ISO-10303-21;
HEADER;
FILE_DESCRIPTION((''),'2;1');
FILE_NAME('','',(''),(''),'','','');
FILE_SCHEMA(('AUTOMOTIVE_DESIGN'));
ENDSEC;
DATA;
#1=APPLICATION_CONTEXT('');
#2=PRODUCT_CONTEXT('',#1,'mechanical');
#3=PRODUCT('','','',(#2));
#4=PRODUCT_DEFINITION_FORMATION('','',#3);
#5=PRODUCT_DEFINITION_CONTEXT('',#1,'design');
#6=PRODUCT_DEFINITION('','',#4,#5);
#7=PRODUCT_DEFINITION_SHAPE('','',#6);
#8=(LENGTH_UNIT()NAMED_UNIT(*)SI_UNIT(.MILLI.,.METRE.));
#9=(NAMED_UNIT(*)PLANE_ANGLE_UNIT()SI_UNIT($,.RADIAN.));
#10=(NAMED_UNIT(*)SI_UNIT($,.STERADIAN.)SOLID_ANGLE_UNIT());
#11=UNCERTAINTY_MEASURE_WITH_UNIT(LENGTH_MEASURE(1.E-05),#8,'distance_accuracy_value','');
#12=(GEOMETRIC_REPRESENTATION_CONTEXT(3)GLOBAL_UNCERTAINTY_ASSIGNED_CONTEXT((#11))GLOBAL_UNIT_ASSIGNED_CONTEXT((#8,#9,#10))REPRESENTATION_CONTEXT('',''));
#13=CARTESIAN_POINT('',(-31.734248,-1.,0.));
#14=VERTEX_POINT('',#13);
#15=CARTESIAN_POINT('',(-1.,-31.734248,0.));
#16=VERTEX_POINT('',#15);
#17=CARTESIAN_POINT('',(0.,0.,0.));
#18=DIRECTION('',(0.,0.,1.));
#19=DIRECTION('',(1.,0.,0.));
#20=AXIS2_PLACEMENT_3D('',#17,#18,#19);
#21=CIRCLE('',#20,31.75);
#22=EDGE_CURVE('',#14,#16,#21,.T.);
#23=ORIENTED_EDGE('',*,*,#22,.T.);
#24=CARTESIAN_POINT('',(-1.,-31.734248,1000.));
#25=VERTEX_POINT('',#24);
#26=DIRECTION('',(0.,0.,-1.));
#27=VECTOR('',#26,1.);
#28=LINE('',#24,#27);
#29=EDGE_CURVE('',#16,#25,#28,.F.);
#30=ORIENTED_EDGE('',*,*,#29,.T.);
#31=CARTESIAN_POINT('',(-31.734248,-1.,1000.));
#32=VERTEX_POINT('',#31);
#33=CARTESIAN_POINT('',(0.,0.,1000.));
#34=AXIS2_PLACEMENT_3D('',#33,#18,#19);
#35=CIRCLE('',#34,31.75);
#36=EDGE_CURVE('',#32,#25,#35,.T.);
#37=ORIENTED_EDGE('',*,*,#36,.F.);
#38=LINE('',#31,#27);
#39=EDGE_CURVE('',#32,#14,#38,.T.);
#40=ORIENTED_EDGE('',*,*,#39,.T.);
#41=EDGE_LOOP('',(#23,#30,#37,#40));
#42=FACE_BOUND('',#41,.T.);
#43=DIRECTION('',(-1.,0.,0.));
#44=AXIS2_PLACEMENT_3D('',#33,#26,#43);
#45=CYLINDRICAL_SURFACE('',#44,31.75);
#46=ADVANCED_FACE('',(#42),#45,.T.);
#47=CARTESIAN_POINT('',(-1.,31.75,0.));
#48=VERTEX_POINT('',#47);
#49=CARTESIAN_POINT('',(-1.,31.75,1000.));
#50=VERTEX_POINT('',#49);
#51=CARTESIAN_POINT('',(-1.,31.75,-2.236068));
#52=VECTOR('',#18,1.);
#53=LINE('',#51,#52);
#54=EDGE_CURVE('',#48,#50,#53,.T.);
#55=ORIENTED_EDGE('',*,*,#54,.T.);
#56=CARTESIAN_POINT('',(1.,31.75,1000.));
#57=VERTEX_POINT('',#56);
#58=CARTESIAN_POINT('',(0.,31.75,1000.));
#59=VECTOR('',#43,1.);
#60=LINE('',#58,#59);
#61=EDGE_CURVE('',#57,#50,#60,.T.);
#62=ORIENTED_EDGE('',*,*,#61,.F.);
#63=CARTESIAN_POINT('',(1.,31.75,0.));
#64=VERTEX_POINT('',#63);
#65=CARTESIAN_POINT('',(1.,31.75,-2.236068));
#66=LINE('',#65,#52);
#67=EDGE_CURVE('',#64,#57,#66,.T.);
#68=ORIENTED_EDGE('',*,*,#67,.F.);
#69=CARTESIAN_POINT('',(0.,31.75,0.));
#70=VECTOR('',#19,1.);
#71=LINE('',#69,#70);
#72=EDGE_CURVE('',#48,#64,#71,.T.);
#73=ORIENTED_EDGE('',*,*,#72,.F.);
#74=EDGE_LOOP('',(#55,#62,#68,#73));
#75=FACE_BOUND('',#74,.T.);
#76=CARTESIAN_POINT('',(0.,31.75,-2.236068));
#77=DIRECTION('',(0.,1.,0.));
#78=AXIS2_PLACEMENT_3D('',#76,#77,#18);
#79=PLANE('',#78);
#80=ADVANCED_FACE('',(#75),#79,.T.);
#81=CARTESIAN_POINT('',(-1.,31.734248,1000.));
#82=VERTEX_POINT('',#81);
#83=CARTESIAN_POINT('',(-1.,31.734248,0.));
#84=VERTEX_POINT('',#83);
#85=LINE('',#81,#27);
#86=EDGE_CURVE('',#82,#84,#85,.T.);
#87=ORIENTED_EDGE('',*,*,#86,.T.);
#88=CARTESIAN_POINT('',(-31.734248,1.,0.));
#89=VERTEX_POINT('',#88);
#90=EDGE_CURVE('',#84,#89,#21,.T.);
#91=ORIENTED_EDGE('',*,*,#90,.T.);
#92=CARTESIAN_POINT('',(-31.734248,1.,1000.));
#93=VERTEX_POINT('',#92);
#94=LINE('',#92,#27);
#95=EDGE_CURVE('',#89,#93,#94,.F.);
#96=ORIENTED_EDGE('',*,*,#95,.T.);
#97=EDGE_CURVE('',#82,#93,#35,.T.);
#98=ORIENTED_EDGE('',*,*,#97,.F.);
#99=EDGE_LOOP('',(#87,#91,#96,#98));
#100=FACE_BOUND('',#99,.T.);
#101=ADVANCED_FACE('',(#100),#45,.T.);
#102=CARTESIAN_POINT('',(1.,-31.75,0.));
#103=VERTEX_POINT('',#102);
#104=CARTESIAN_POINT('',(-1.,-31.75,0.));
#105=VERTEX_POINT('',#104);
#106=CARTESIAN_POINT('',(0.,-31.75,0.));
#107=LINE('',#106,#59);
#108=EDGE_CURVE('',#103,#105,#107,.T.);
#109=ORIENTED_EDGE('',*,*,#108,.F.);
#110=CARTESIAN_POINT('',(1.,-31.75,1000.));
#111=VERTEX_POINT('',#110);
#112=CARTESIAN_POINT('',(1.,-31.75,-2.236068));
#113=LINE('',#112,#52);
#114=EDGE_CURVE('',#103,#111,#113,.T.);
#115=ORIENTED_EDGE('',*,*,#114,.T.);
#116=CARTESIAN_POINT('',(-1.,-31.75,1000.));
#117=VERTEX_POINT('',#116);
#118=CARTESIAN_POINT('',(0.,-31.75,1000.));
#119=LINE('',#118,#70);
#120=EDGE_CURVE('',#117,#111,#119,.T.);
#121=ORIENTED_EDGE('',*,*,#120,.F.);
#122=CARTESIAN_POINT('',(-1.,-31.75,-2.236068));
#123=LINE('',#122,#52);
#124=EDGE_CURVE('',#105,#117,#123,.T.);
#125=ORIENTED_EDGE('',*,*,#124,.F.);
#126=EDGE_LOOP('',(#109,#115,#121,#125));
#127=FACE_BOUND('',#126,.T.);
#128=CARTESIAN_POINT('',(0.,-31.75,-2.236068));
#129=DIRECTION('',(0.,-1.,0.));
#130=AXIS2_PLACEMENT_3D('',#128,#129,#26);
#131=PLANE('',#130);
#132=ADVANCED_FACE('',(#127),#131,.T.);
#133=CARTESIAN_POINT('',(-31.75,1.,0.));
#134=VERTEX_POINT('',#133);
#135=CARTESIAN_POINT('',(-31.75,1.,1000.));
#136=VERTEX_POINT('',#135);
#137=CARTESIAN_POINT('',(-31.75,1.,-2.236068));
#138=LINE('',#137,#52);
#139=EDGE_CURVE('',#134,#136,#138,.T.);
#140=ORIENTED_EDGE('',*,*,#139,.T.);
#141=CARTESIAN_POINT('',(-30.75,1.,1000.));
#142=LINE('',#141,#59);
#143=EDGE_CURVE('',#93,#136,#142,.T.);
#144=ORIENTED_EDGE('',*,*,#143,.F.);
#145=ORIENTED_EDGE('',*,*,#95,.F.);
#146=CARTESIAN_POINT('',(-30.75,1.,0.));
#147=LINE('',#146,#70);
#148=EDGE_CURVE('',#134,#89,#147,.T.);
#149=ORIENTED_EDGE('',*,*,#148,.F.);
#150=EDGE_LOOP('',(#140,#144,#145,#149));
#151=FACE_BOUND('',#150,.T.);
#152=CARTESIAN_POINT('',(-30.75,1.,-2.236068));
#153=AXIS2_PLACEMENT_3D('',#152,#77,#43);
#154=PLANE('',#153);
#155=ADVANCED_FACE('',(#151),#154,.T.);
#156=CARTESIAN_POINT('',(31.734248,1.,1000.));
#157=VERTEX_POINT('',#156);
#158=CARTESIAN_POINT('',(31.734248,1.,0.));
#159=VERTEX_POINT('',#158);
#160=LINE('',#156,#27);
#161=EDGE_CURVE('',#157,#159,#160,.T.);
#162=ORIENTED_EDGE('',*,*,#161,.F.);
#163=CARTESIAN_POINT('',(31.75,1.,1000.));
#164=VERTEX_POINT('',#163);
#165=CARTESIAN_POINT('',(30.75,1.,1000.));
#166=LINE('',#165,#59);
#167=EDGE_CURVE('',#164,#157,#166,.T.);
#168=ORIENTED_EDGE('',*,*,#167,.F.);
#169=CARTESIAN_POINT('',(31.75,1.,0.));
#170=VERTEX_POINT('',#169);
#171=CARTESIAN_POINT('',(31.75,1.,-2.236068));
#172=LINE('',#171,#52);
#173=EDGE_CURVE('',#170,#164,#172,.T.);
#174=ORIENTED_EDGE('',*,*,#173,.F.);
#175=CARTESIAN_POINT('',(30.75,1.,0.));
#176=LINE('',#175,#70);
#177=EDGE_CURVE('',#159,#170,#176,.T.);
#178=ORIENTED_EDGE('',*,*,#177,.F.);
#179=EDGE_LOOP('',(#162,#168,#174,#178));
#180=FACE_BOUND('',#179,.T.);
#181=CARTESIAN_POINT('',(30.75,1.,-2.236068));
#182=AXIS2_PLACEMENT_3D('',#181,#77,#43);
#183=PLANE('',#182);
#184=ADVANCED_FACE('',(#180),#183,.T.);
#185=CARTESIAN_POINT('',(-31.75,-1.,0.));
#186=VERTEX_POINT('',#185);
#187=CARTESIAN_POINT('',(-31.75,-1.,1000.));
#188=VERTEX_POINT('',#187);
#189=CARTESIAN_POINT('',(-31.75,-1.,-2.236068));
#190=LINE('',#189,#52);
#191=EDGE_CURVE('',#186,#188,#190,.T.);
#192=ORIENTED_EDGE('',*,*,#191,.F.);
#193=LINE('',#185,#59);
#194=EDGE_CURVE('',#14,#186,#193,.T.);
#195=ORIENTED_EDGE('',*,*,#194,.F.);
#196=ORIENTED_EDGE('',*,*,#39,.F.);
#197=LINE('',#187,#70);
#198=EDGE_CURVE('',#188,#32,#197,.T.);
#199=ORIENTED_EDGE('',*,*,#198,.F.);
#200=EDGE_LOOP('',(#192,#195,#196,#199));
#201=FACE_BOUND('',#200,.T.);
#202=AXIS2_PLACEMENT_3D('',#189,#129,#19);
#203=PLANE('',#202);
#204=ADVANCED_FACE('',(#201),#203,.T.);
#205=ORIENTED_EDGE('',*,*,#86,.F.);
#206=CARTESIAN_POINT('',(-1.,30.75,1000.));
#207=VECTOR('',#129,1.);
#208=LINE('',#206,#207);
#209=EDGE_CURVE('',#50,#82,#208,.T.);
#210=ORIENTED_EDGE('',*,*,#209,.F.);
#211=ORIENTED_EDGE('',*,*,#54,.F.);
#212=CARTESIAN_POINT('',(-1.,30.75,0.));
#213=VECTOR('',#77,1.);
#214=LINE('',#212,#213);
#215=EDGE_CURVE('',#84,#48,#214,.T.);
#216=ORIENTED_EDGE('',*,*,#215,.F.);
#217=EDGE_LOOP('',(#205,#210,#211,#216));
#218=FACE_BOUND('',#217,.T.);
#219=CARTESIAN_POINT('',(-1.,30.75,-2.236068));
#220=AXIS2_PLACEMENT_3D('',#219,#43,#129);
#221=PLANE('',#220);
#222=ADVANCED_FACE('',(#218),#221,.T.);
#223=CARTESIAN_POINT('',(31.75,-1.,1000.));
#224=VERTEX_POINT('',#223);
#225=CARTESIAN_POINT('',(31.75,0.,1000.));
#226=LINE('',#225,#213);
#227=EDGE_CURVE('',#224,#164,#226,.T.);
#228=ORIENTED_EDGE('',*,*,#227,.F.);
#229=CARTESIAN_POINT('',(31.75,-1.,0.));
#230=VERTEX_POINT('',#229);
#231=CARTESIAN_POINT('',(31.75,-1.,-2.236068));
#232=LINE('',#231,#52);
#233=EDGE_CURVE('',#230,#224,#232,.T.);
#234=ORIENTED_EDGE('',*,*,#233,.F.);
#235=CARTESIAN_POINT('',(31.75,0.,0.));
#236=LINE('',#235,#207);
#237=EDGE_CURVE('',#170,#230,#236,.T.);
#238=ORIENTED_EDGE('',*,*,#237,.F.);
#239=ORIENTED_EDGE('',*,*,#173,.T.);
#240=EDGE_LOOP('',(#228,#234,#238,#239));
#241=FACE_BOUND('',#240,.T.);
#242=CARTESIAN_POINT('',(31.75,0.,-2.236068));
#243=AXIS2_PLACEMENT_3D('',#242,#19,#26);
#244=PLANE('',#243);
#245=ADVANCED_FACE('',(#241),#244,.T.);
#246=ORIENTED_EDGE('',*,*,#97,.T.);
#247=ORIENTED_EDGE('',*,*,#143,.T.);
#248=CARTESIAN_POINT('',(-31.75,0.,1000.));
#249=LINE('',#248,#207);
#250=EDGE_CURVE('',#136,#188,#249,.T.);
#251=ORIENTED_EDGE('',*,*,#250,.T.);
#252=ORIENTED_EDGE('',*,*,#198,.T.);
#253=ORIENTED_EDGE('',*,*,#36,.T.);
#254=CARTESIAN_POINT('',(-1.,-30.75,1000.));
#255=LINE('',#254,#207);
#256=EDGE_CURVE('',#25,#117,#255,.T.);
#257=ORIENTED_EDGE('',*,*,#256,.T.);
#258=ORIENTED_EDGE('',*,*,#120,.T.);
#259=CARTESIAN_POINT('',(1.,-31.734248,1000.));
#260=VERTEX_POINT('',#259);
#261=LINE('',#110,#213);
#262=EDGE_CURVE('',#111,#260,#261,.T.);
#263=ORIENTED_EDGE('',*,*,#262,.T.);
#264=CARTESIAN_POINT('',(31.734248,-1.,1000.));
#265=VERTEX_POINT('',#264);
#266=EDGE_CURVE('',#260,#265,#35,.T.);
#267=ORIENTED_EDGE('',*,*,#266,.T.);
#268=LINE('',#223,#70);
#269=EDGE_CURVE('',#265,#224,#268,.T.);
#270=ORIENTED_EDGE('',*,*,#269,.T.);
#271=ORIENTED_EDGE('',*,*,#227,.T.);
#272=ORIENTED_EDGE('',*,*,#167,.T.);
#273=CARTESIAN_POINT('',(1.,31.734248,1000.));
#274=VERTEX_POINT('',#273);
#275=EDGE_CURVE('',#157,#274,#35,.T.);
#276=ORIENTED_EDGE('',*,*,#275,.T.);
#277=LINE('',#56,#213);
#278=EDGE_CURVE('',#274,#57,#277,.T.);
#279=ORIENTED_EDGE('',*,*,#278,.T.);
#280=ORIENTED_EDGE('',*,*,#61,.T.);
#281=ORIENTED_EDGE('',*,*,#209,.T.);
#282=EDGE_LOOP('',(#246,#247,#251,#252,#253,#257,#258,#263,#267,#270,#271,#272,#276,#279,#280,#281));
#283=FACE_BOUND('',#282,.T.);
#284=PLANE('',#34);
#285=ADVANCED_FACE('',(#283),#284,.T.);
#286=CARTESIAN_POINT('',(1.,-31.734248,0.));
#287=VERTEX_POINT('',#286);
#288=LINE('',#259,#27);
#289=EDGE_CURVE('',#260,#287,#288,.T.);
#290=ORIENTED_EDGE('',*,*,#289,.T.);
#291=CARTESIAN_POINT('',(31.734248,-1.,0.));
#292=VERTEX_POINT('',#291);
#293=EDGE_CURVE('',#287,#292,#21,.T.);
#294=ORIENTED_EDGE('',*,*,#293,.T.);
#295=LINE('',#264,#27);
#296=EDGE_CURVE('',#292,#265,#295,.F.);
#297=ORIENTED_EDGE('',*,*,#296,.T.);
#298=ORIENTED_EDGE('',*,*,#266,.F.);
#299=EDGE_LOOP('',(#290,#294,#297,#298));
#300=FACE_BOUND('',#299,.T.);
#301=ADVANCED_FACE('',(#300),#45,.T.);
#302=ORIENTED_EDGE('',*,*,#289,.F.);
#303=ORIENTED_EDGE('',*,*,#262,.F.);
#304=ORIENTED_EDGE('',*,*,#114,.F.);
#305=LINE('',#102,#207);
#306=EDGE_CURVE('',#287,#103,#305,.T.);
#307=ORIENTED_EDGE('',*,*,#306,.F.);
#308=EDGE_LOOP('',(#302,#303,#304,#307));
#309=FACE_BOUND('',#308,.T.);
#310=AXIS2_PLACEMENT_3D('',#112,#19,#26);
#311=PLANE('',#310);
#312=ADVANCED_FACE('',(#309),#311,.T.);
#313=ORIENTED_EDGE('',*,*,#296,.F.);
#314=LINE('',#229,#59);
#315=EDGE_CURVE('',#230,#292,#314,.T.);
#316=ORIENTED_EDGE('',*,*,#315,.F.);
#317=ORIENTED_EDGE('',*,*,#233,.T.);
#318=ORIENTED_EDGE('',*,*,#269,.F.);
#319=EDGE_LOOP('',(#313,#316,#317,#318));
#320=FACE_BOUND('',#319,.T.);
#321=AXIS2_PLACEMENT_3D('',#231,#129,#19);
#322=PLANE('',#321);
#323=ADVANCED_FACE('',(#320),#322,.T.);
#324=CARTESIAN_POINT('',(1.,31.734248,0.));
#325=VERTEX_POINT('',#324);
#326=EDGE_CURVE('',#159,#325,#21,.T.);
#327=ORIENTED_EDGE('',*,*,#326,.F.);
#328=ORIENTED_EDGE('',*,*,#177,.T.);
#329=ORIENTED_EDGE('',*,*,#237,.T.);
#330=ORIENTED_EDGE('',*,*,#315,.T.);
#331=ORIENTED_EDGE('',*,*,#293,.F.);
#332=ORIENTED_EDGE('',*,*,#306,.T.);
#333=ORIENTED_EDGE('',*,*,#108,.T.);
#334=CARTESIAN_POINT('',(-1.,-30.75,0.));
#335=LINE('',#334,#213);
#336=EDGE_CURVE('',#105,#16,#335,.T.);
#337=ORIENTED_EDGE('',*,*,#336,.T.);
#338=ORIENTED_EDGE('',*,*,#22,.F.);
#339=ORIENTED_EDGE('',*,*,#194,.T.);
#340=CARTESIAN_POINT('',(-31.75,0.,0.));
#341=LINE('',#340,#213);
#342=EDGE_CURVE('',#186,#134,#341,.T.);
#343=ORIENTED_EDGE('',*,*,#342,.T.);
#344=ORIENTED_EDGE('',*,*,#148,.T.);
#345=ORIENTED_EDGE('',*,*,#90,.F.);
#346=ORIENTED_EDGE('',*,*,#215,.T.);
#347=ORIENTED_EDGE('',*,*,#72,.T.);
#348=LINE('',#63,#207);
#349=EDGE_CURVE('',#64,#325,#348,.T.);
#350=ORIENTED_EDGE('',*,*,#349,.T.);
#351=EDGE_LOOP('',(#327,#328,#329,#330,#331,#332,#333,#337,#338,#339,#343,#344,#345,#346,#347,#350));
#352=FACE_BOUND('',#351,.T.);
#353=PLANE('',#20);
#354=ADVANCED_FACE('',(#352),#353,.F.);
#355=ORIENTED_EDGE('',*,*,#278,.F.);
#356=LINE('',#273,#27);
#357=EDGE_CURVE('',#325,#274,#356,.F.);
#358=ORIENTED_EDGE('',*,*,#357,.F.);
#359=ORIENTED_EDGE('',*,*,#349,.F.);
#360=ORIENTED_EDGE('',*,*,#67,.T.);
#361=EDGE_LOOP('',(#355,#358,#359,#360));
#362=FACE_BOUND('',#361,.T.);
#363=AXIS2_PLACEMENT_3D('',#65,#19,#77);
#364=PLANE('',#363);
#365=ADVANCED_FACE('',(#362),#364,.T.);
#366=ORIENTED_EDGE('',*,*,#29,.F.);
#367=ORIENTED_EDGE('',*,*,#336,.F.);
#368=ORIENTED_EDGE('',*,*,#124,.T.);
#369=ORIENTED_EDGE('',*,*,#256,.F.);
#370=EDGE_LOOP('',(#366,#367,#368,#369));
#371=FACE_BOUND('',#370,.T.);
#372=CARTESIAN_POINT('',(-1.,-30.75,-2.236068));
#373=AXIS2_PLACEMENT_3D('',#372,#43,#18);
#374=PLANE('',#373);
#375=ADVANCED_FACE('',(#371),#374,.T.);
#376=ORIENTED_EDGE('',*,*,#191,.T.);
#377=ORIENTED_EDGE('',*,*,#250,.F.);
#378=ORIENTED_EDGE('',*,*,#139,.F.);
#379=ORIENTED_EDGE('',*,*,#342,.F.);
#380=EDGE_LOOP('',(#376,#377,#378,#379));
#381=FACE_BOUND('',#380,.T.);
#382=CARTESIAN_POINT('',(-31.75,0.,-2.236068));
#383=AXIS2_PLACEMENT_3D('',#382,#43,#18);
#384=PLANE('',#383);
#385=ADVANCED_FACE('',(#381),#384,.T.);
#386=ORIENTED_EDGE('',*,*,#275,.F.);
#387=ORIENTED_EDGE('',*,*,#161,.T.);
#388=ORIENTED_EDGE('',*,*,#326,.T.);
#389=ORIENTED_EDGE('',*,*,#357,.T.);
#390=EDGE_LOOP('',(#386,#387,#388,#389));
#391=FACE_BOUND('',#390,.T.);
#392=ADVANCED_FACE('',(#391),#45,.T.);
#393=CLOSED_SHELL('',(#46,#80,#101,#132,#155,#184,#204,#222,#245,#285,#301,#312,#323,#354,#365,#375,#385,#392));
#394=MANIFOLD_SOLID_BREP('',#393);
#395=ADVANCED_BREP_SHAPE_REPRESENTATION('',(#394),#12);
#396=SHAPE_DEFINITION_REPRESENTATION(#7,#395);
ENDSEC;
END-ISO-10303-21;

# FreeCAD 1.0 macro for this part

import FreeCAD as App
import Part
import Sketcher


def add_polygon(sketch, points):
    """Adds a closed chain of lines whose ends are joined by coincident constraints."""
    first, n = sketch.GeometryCount, len(points)
    for a, b in zip(points, points[1:] + points[:1]):
        sketch.addGeometry(Part.LineSegment(App.Vector(*a, 0), App.Vector(*b, 0)), False)
    for i in range(n):
        sketch.addConstraint(Sketcher.Constraint("Coincident", first + i, 2, first + (i + 1) % n, 1))

doc = App.newDocument("Part")
body = doc.addObject("PartDesign::Body", "Body")

# Sketch on XY plane
sketch1 = doc.addObject("Sketcher::SketchObject", "Sketch")
body.addObject(sketch1)
sketch1.AttachmentSupport = (doc.XY_Plane, [""])
sketch1.MapMode = "FlatFace"
sketch1.addGeometry(Part.Circle(App.Vector(0, 0, 0), App.Vector(0, 0, 1), 32), False)
sketch1.addConstraint([
    Sketcher.Constraint("Coincident", 0, 3, -1, 1),
    Sketcher.Constraint("Diameter", 0, 63.5),
])
pad1 = doc.addObject("PartDesign::Pad", "Pad")
body.addObject(pad1)
pad1.Profile = sketch1
pad1.Length = 1000

# Sketch on XY plane
sketch2 = doc.addObject("Sketcher::SketchObject", "Sketch001")
body.addObject(sketch2)
sketch2.AttachmentSupport = (doc.XY_Plane, [""])
sketch2.MapMode = "FlatFace"
sketch2.AttachmentOffset = App.Placement(App.Vector(0, 0, 1000), App.Rotation())
add_polygon(sketch2, [(31.8, -1), (31.8, 1), (30.8, 1), (30.8, -1)])  # lines 0-3
add_polygon(sketch2, [(-31.8, 1), (-31.8, -1), (-30.8, -1), (-30.8, 1)])  # lines 4-7
add_polygon(sketch2, [(1, 31.8), (-1, 31.8), (-1, 30.8), (1, 30.8)])  # lines 8-11
add_polygon(sketch2, [(-1, -31.8), (1, -31.8), (1, -30.8), (-1, -30.8)])  # lines 12-15
sketch2.addConstraint([
    Sketcher.Constraint("Vertical", 0),
    Sketcher.Constraint("Horizontal", 1),
    Sketcher.Constraint("Vertical", 2),
    Sketcher.Constraint("Horizontal", 3),
    Sketcher.Constraint("Vertical", 4),
    Sketcher.Constraint("Horizontal", 5),
    Sketcher.Constraint("Vertical", 6),
    Sketcher.Constraint("Horizontal", 7),
    Sketcher.Constraint("Horizontal", 8),
    Sketcher.Constraint("Vertical", 9),
    Sketcher.Constraint("Horizontal", 10),
    Sketcher.Constraint("Vertical", 11),
    Sketcher.Constraint("Horizontal", 12),
    Sketcher.Constraint("Vertical", 13),
    Sketcher.Constraint("Horizontal", 14),
    Sketcher.Constraint("Vertical", 15),
    Sketcher.Constraint("Symmetric", 0, 2, 4, 2, -1, 1),
    Sketcher.Constraint("Symmetric", 2, 2, 6, 2, -1, 1),
    Sketcher.Constraint("Symmetric", 8, 2, 12, 2, -1, 1),
    Sketcher.Constraint("Symmetric", 10, 2, 14, 2, -1, 1),
    Sketcher.Constraint("Horizontal", 3, 2, 4, 2),
    Sketcher.Constraint("Vertical", 11, 2, 12, 2),
    Sketcher.Constraint("Equal", 14, 0),
    Sketcher.Constraint("Equal", 7, 9),
    Sketcher.Constraint("DistanceX", 1, 2, 1, 1, 1.0),
    Sketcher.Constraint("DistanceX", 8, 2, 8, 1, 2.0),
    Sketcher.Constraint("DistanceX", 4, 2, 2, 2, 62.5),
    Sketcher.Constraint("DistanceY", -1, 1, 8, 2, 31.75),
])
pad2 = doc.addObject("PartDesign::Pad", "Pad001")
body.addObject(pad2)
pad2.Profile = sketch2
pad2.Length = 1000
pad2.Reversed = True

doc.recompute()
